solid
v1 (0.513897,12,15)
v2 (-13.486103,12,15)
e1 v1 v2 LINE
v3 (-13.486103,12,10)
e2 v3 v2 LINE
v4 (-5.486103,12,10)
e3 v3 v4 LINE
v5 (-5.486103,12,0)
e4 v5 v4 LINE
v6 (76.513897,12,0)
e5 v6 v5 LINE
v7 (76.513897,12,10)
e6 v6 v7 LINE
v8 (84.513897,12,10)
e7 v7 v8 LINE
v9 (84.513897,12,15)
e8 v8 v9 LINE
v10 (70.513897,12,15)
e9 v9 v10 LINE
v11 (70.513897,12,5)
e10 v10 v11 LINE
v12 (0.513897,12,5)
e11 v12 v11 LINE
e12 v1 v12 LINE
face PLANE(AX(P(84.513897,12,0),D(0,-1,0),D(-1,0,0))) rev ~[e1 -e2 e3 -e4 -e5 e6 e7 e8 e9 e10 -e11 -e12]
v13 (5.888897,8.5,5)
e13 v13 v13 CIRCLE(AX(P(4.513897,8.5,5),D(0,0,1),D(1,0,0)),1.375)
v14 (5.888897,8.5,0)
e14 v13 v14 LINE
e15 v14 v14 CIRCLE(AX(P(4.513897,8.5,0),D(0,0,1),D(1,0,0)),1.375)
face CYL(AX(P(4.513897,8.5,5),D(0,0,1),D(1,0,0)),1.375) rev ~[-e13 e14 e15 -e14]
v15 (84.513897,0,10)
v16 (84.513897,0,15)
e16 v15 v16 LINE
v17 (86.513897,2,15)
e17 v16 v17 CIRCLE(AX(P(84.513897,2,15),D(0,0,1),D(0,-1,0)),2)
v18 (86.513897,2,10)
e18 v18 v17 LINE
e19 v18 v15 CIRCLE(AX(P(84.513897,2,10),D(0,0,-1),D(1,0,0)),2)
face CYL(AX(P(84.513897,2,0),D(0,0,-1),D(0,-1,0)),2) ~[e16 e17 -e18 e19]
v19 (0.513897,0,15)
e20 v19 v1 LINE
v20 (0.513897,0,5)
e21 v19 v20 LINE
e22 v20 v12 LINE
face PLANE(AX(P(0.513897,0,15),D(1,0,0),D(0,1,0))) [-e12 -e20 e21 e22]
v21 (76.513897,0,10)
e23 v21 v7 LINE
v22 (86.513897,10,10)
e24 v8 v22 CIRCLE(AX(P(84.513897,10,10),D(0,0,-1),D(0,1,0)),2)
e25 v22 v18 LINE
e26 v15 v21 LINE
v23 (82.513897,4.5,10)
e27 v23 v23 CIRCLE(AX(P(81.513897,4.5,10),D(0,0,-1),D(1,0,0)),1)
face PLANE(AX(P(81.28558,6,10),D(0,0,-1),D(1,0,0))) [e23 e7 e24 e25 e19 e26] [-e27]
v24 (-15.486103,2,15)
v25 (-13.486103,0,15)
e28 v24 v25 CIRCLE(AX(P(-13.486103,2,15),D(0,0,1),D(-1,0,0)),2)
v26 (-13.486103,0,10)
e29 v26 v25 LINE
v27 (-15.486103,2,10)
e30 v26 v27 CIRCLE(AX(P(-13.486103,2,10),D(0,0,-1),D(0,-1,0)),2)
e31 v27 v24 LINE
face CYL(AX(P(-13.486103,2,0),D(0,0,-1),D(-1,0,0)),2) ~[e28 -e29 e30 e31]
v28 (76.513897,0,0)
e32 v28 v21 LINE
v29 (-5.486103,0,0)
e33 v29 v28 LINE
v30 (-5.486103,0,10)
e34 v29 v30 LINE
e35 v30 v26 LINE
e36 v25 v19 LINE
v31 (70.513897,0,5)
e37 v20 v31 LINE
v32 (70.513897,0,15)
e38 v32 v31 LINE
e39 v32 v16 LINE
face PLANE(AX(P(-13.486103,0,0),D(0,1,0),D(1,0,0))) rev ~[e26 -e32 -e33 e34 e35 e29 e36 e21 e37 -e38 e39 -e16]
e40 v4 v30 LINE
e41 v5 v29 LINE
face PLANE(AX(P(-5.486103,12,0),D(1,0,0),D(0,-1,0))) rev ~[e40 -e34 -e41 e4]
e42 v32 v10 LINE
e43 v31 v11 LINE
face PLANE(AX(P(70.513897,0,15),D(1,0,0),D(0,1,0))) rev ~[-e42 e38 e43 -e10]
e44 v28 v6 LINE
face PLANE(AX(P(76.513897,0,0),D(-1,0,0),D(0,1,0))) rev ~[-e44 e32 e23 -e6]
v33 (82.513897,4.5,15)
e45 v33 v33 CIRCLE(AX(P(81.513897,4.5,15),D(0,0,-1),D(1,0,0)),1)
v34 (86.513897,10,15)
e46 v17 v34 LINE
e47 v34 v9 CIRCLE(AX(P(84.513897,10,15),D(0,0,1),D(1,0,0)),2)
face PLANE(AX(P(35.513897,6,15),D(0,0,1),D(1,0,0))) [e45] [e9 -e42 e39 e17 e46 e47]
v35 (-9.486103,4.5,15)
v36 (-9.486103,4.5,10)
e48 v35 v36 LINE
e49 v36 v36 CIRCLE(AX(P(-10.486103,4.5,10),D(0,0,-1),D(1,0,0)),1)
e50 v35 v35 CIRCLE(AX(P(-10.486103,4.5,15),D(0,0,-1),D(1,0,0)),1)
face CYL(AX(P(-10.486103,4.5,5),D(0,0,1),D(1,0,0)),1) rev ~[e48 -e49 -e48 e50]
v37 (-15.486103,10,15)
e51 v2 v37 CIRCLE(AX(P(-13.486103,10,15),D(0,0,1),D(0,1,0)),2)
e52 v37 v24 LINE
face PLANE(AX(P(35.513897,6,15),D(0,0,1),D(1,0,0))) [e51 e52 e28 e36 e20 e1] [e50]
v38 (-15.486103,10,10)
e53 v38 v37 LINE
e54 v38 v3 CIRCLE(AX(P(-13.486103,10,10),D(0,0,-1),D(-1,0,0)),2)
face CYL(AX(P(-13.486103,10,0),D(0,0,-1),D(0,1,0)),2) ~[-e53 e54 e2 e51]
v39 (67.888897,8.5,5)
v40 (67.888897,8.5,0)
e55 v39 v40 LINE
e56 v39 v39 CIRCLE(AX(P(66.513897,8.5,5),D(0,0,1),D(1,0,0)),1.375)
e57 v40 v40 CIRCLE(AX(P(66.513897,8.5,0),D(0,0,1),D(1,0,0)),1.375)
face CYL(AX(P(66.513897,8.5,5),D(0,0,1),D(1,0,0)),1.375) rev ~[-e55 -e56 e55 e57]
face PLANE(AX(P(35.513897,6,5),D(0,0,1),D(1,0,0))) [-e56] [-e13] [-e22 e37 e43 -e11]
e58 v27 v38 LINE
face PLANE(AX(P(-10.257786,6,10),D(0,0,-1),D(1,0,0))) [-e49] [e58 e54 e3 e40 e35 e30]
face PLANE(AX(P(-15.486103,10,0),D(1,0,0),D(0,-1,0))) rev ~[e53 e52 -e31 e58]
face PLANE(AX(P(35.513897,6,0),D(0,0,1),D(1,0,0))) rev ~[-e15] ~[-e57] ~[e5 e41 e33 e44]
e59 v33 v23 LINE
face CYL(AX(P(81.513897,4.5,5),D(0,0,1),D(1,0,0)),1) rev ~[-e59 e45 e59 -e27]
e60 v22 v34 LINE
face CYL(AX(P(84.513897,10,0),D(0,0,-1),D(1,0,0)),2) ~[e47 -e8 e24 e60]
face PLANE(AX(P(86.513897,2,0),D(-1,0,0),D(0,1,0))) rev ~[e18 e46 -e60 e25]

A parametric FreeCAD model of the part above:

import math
import FreeCAD as App
import Part
import Sketcher

V = App.Vector


def add_polygon(sketch, points):
    """Adds a closed chain of lines whose ends are joined by coincident constraints."""
    first, n = sketch.GeometryCount, len(points)
    for a, b in zip(points, points[1:] + points[:1]):
        sketch.addGeometry(Part.LineSegment(App.Vector(*a, 0), App.Vector(*b, 0)), False)
    for i in range(n):
        sketch.addConstraint(Sketcher.Constraint("Coincident", first + i, 2, first + (i + 1) % n, 1))

doc = App.newDocument("Part")
body = doc.addObject("PartDesign::Body", "Body")

# Sketch on XY plane
sketch1 = body.newObject("Sketcher::SketchObject", "Sketch")
sketch1.AttachmentSupport = (doc.getObject("XY_Plane"), [""])
sketch1.MapMode = "FlatFace"
sketch1.addGeometry([
    Part.ArcOfCircle(Part.Circle(V(-13.5, 2, 0), V(0, 0, 1), 2), math.radians(180), math.radians(270)),  # 0
    Part.LineSegment(V(-13.5, 0, 0), V(84.5, 0, 0)),  # 1
    Part.ArcOfCircle(Part.Circle(V(84.5, 2, 0), V(0, 0, 1), 2), math.radians(-90), math.radians(0)),  # 2
    Part.LineSegment(V(86.5, 2, 0), V(86.5, 10, 0)),  # 3
    Part.ArcOfCircle(Part.Circle(V(84.5, 10, 0), V(0, 0, 1), 2), math.radians(0), math.radians(90)),  # 4
    Part.LineSegment(V(84.5, 12, 0), V(-13.5, 12, 0)),  # 5
    Part.ArcOfCircle(Part.Circle(V(-13.5, 10, 0), V(0, 0, 1), 2), math.radians(90), math.radians(180)),  # 6
    Part.LineSegment(V(-15.5, 10, 0), V(-15.5, 2, 0)),  # 7
], False)
sketch1.addConstraint([
    Sketcher.Constraint("Tangent", 0, 2, 1, 1),
    Sketcher.Constraint("Tangent", 1, 2, 2, 1),
    Sketcher.Constraint("Tangent", 2, 2, 3, 1),
    Sketcher.Constraint("Tangent", 3, 2, 4, 1),
    Sketcher.Constraint("Tangent", 4, 2, 5, 1),
    Sketcher.Constraint("Tangent", 5, 2, 6, 1),
    Sketcher.Constraint("Tangent", 6, 2, 7, 1),
    Sketcher.Constraint("Tangent", 7, 2, 0, 1),
    Sketcher.Constraint("Horizontal", 1),
    Sketcher.Constraint("Vertical", 3),
    Sketcher.Constraint("Horizontal", 5),
    Sketcher.Constraint("Vertical", 7),
    Sketcher.Constraint("Equal", 0, 2),
    Sketcher.Constraint("Equal", 2, 4),
    Sketcher.Constraint("Equal", 4, 6),
    Sketcher.Constraint("PointOnObject", 0, 2, -1),
    Sketcher.Constraint("Radius", 0, 2.0),
    Sketcher.Constraint("DistanceX", 1, 1, 1, 2, 98.0),
    Sketcher.Constraint("DistanceY", 3, 1, 3, 2, 8.0),
    Sketcher.Constraint("DistanceX", 0, 3, -1, 1, 13.486103),
])
pad1 = body.newObject("PartDesign::Pad", "Pad")
pad1.Profile = sketch1
pad1.Length = 15

# Sketch on XY plane
sketch2 = body.newObject("Sketcher::SketchObject", "Sketch001")
sketch2.AttachmentSupport = (doc.getObject("XY_Plane"), [""])
sketch2.MapMode = "FlatFace"
sketch2.AttachmentOffset = App.Placement(V(0, 0, 15), App.Rotation())
add_polygon(sketch2, [(1, 12), (1, 0), (71, 0), (71, 12)])  # lines 0-3
sketch2.addConstraint([
    Sketcher.Constraint("Vertical", 0),
    Sketcher.Constraint("Horizontal", 1),
    Sketcher.Constraint("Vertical", 2),
    Sketcher.Constraint("Horizontal", 3),
    Sketcher.Constraint("PointOnObject", 0, 2, -1),
    Sketcher.Constraint("DistanceX", 1, 1, 1, 2, 70.0),
    Sketcher.Constraint("DistanceY", 0, 2, 0, 1, 12.0),
    Sketcher.Constraint("DistanceX", -1, 1, 0, 2, 0.513897),
])
pocket1 = body.newObject("PartDesign::Pocket", "Pocket")
pocket1.Profile = sketch2
pocket1.Length = 10

# Sketch on XY plane
sketch3 = body.newObject("Sketcher::SketchObject", "Sketch002")
sketch3.AttachmentSupport = (doc.getObject("XY_Plane"), [""])
sketch3.MapMode = "FlatFace"
sketch3.AttachmentOffset = App.Placement(V(0, 0, 5), App.Rotation())
sketch3.addGeometry([
    Part.Circle(V(4.5, 8.5, 0), V(0, 0, 1), 1.4),
    Part.Circle(V(66.5, 8.5, 0), V(0, 0, 1), 1.4),
    Part.Circle(V(-10.5, 4.5, 0), V(0, 0, 1), 1),
    Part.Circle(V(81.5, 4.5, 0), V(0, 0, 1), 1),
], False)
sketch3.addConstraint([
    Sketcher.Constraint("Equal", 0, 1),
    Sketcher.Constraint("Equal", 2, 3),
    Sketcher.Constraint("Horizontal", 0, 3, 1, 3),
    Sketcher.Constraint("Horizontal", 2, 3, 3, 3),
    Sketcher.Constraint("Diameter", 2, 2.0),
    Sketcher.Constraint("Diameter", 0, 2.75),
    Sketcher.Constraint("DistanceX", 0, 3, 1, 3, 62.0),
    Sketcher.Constraint("DistanceX", 2, 3, 0, 3, 15.0),
    Sketcher.Constraint("DistanceY", 2, 3, 0, 3, 4.0),
    Sketcher.Constraint("DistanceX", 1, 3, 3, 3, 15.0),
    Sketcher.Constraint("DistanceY", -1, 1, 0, 3, 8.5),
    Sketcher.Constraint("DistanceX", -1, 1, 0, 3, 4.513897),
])
pocket2 = body.newObject("PartDesign::Pocket", "Pocket001")
pocket2.Profile = sketch3
pocket2.Type = "ThroughAll"
pocket2.Midplane = True

# Sketch on XY plane
sketch4 = body.newObject("Sketcher::SketchObject", "Sketch003")
sketch4.AttachmentSupport = (doc.getObject("XY_Plane"), [""])
sketch4.MapMode = "FlatFace"
sketch4.addGeometry([
    Part.LineSegment(V(76.5, 0, 0), V(76.5, 12, 0)),  # 0
    Part.LineSegment(V(76.5, 12, 0), V(84.5, 12, 0)),  # 1
    Part.ArcOfCircle(Part.Circle(V(84.5, 10, 0), V(0, 0, 1), 2), math.radians(0), math.radians(90)),  # 2
    Part.LineSegment(V(86.5, 10, 0), V(86.5, 2, 0)),  # 3
    Part.ArcOfCircle(Part.Circle(V(84.5, 2, 0), V(0, 0, 1), 2), math.radians(-90), math.radians(0)),  # 4
    Part.LineSegment(V(84.5, 0, 0), V(76.5, 0, 0)),  # 5
    Part.Circle(V(81.5, 4.5, 0), V(0, 0, 1), 1),  # 6
    Part.LineSegment(V(-13.5, 12, 0), V(-5.5, 12, 0)),  # 7
    Part.LineSegment(V(-5.5, 12, 0), V(-5.5, 0, 0)),  # 8
    Part.LineSegment(V(-5.5, 0, 0), V(-13.5, 0, 0)),  # 9
    Part.ArcOfCircle(Part.Circle(V(-13.5, 2, 0), V(0, 0, 1), 2), math.radians(180), math.radians(270)),  # 10
    Part.LineSegment(V(-15.5, 2, 0), V(-15.5, 10, 0)),  # 11
    Part.ArcOfCircle(Part.Circle(V(-13.5, 10, 0), V(0, 0, 1), 2), math.radians(90), math.radians(180)),  # 12
    Part.Circle(V(-10.5, 4.5, 0), V(0, 0, 1), 1),  # 13
], False)
sketch4.addConstraint([
    Sketcher.Constraint("Coincident", 0, 2, 1, 1),
    Sketcher.Constraint("Tangent", 1, 2, 2, 2),
    Sketcher.Constraint("Tangent", 2, 1, 3, 1),
    Sketcher.Constraint("Tangent", 3, 2, 4, 2),
    Sketcher.Constraint("Tangent", 4, 1, 5, 1),
    Sketcher.Constraint("Coincident", 5, 2, 0, 1),
    Sketcher.Constraint("Coincident", 7, 2, 8, 1),
    Sketcher.Constraint("Coincident", 8, 2, 9, 1),
    Sketcher.Constraint("Tangent", 9, 2, 10, 2),
    Sketcher.Constraint("Tangent", 10, 1, 11, 1),
    Sketcher.Constraint("Tangent", 11, 2, 12, 2),
    Sketcher.Constraint("Tangent", 12, 1, 7, 1),
    Sketcher.Constraint("Vertical", 0),
    Sketcher.Constraint("Horizontal", 1),
    Sketcher.Constraint("Vertical", 3),
    Sketcher.Constraint("Horizontal", 5),
    Sketcher.Constraint("Horizontal", 7),
    Sketcher.Constraint("Vertical", 8),
    Sketcher.Constraint("Horizontal", 9),
    Sketcher.Constraint("Vertical", 11),
    Sketcher.Constraint("Equal", 2, 4),
    Sketcher.Constraint("Equal", 4, 10),
    Sketcher.Constraint("Equal", 10, 12),
    Sketcher.Constraint("Equal", 6, 13),
    Sketcher.Constraint("PointOnObject", 4, 1, -1),
    Sketcher.Constraint("PointOnObject", 8, 2, -1),
    Sketcher.Constraint("Horizontal", 2, 3, 12, 3),
    Sketcher.Constraint("Horizontal", 6, 3, 13, 3),
    Sketcher.Constraint("Equal", 5, 7),
    Sketcher.Constraint("Equal", 9, 3),
    Sketcher.Constraint("Diameter", 6, 2.0),
    Sketcher.Constraint("Radius", 2, 2.0),
    Sketcher.Constraint("DistanceX", 1, 1, 1, 2, 8.0),
    Sketcher.Constraint("DistanceX", 6, 3, 4, 3, 3.0),
    Sketcher.Constraint("DistanceX", 10, 3, 6, 3, 95.0),
    Sketcher.Constraint("DistanceX", 10, 3, 13, 3, 3.0),
    Sketcher.Constraint("DistanceY", -1, 1, 6, 3, 4.5),
    Sketcher.Constraint("DistanceX", -1, 1, 2, 3, 84.513897),
])
pocket3 = body.newObject("PartDesign::Pocket", "Pocket002")
pocket3.Profile = sketch4
pocket3.Length = 10
pocket3.Reversed = True

doc.recompute()
